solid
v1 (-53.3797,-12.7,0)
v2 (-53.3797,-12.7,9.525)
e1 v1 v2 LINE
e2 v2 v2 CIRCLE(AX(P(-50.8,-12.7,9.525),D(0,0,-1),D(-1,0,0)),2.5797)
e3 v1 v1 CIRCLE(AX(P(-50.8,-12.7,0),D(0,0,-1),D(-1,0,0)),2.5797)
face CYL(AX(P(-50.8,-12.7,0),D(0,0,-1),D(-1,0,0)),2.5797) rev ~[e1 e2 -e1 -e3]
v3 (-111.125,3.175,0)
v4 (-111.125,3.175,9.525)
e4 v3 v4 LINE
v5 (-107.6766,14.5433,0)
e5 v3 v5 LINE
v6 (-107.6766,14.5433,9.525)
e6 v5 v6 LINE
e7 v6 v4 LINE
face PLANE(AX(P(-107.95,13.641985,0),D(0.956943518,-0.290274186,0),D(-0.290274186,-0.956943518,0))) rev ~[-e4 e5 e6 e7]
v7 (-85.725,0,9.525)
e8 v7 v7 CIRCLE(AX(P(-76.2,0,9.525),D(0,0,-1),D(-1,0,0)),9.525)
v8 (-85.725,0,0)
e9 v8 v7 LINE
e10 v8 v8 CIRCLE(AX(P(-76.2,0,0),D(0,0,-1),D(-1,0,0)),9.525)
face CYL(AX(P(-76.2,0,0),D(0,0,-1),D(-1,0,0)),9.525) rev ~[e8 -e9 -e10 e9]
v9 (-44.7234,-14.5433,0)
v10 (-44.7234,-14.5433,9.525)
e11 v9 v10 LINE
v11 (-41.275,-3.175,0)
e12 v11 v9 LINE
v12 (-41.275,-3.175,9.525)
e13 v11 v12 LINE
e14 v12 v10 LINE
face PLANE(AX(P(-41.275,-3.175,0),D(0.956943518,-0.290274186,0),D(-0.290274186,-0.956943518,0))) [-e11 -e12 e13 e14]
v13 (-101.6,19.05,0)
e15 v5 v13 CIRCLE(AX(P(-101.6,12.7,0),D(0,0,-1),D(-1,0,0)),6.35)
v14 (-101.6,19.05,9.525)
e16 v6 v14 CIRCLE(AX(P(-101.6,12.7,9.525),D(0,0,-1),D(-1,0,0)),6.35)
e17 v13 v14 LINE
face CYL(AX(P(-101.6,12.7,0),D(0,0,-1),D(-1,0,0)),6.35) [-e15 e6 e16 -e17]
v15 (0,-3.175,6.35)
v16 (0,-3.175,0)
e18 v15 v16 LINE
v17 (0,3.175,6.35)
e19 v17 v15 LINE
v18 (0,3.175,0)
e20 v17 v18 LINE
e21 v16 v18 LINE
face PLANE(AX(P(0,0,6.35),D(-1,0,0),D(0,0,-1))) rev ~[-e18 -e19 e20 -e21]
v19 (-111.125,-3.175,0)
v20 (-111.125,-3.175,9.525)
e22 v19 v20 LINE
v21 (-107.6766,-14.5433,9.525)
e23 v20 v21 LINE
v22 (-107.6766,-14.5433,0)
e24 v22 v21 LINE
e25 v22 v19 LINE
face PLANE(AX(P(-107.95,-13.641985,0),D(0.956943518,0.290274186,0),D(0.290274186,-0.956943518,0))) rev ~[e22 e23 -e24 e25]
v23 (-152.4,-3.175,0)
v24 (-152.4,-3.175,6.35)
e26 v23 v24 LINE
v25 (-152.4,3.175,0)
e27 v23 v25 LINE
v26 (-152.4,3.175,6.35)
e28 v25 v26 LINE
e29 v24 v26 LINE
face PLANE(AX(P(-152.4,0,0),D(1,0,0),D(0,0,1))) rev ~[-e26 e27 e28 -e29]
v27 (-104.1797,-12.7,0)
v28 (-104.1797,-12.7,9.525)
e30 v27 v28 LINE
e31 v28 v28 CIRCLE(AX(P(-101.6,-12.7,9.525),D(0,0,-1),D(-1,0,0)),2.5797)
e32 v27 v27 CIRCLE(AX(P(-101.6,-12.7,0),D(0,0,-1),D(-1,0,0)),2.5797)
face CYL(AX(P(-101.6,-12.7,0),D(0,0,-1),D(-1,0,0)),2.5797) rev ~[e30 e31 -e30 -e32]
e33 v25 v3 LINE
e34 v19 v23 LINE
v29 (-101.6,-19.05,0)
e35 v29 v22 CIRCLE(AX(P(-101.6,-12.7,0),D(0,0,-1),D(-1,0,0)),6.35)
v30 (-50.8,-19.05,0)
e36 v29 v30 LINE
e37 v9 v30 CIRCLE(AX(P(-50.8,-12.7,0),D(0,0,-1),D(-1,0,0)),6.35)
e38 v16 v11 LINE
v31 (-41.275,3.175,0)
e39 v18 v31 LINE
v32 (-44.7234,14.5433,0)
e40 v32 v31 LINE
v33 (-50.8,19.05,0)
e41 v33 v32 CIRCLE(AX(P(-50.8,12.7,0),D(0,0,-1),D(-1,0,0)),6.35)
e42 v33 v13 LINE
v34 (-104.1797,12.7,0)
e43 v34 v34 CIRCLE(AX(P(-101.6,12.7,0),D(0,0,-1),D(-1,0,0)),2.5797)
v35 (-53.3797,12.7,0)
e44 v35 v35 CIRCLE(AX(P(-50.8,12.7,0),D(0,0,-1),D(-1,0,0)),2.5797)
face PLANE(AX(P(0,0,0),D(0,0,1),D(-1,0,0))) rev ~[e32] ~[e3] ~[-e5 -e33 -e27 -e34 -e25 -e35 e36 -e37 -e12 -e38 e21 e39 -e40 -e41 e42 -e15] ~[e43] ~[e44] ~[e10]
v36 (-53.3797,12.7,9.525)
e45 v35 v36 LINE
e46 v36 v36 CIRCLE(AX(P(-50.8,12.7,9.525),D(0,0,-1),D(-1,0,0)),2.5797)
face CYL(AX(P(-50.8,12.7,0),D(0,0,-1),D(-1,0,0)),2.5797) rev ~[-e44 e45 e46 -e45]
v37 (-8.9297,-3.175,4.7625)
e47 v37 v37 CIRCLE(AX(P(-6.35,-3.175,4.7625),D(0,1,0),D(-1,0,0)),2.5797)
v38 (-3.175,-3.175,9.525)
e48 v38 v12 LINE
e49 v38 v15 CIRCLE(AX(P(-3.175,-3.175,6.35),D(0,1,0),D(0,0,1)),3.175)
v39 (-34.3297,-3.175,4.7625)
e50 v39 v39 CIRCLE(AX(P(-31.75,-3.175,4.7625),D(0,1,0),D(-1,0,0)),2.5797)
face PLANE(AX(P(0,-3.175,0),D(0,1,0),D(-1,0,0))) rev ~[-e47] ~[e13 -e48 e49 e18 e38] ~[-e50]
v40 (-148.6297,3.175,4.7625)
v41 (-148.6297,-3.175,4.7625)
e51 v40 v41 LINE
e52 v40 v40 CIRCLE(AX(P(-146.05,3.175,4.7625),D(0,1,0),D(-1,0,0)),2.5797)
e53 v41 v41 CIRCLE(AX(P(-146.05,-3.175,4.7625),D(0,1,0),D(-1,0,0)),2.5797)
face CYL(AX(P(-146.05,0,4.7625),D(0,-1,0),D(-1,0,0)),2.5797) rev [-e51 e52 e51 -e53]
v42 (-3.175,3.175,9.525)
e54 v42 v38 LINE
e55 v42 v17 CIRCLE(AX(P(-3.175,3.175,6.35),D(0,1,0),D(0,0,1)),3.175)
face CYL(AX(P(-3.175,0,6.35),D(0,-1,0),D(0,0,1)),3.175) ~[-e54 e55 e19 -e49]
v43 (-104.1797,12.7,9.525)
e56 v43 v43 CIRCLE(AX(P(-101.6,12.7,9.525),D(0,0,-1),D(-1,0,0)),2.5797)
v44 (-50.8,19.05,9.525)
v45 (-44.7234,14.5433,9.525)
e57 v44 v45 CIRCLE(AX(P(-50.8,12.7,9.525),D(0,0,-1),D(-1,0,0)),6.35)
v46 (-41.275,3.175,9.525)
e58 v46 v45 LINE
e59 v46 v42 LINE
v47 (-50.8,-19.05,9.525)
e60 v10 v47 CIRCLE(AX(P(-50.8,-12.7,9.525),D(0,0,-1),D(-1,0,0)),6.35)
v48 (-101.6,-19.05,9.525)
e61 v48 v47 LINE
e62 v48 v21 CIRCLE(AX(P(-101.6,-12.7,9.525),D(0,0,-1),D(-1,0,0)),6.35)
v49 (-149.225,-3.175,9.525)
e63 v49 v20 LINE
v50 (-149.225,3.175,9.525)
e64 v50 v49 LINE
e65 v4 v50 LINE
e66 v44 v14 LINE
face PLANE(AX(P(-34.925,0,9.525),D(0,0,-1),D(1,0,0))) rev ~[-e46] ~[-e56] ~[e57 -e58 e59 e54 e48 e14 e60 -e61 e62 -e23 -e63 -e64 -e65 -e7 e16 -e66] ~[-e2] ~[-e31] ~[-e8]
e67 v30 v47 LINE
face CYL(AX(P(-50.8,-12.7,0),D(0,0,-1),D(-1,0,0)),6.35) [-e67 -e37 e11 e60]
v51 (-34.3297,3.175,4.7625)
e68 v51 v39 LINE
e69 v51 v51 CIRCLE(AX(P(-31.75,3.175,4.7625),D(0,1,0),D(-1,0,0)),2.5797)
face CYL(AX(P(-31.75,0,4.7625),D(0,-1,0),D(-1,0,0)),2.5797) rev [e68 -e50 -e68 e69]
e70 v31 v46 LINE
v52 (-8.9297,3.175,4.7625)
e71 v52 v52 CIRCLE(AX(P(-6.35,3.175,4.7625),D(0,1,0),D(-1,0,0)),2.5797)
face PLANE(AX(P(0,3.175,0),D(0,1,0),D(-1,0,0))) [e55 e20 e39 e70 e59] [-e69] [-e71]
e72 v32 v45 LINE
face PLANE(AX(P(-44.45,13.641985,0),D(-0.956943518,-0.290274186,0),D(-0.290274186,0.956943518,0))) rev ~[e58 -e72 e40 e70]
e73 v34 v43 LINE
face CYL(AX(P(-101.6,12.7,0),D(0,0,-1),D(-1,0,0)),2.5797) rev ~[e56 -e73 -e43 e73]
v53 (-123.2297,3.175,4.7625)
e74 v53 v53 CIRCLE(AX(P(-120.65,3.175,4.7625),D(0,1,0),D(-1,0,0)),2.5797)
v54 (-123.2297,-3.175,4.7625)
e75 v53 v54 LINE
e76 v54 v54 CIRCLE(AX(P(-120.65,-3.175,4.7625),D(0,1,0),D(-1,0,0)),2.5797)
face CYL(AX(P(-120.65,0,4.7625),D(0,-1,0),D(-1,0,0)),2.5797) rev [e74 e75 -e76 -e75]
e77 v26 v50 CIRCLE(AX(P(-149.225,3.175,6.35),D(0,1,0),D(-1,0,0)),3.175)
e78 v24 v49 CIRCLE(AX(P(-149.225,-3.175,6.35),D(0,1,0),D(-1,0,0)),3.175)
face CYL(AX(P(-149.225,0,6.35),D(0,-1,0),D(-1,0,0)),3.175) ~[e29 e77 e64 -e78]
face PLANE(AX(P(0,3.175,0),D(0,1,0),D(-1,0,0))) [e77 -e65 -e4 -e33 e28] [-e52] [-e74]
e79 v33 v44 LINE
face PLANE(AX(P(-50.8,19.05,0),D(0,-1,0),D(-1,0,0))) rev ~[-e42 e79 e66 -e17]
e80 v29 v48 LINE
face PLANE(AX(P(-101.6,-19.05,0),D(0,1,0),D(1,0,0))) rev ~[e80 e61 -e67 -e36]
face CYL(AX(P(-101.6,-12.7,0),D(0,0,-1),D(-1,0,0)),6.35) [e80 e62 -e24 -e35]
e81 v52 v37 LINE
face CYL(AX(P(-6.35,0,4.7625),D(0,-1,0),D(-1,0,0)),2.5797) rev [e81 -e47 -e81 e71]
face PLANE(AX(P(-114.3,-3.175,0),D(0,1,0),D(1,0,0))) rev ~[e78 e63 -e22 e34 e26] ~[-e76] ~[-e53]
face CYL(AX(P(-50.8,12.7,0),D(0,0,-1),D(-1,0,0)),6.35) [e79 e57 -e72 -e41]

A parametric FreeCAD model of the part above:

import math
import FreeCAD as App
import Part
import Sketcher
Q = App.Units.Quantity


def add_polygon(sketch, points):
    """Adds a closed chain of lines whose ends are joined by coincident constraints."""
    first, n = sketch.GeometryCount, len(points)
    for a, b in zip(points, points[1:] + points[:1]):
        sketch.addGeometry(Part.LineSegment(App.Vector(*a, 0), App.Vector(*b, 0)), False)
    for i in range(n):
        sketch.addConstraint(Sketcher.Constraint("Coincident", first + i, 2, first + (i + 1) % n, 1))

doc = App.newDocument("Part")
params = doc.addObject("Spreadsheet::Sheet", "Params")
for row, (alias, value) in enumerate([
    ("sketch1_width", "6 in"),
    ("sketch1_diameter", "0.203126 in"),
    ("sketch1_radius", "0.125 in"),
    ("sketch1_height", "0.25 in"),
    ("pad1_length", "0.25 in"),
    ("sketch2_width", "3 in"),
    ("sketch2_height", "0.375 in"),
    ("pad2_length", "2 in"),
    ("sketch3_diameter", "0.75 in"),
    ("sketch3_width", "3 in"),
    ("sketch3_width2", "2 in"),
    ("sketch3_radius", "0.25 in"),
    ("sketch3_diameter2", "0.203126 in"),
], start=1):
    params.set(f"A{row}", alias)
    params.set(f"B{row}", "=" + value)
    params.setAlias(f"B{row}", alias)

body = doc.addObject("PartDesign::Body", "Body")

sketch1 = body.newObject("Sketcher::SketchObject", "Sketch")
sketch1.AttachmentSupport = (doc.getObject("XZ_Plane"), [""])
sketch1.MapMode = "FlatFace"
sketch1.addGeometry(Part.LineSegment(App.Vector(0, 6.3, 0), App.Vector(0, 0, 0)), False)
sketch1.addGeometry(Part.LineSegment(App.Vector(0, 0, 0), App.Vector(-152.4, 0, 0)), False)
sketch1.addGeometry(Part.LineSegment(App.Vector(-152.4, 0, 0), App.Vector(-152.4, 6.3, 0)), False)
sketch1.addGeometry(Part.ArcOfCircle(Part.Circle(App.Vector(-149.2, 6.3, 0), App.Vector(0, 0, 1), 3.2), math.radians(90), math.radians(180)), False)
sketch1.addGeometry(Part.LineSegment(App.Vector(-149.2, 9.5, 0), App.Vector(-3.2, 9.5, 0)), False)
sketch1.addGeometry(Part.ArcOfCircle(Part.Circle(App.Vector(-3.2, 6.3, 0), App.Vector(0, 0, 1), 3.2), math.radians(0), math.radians(90)), False)
sketch1.addGeometry(Part.Circle(App.Vector(-6.3, 4.8, 0), App.Vector(0, 0, 1), 2.6), False)
sketch1.addGeometry(Part.Circle(App.Vector(-31.8, 4.8, 0), App.Vector(0, 0, 1), 2.6), False)
sketch1.addGeometry(Part.Circle(App.Vector(-146.1, 4.8, 0), App.Vector(0, 0, 1), 2.6), False)
sketch1.addGeometry(Part.Circle(App.Vector(-120.7, 4.8, 0), App.Vector(0, 0, 1), 2.6), False)
sketch1.addConstraint(Sketcher.Constraint("Coincident", 0, 2, 1, 1))
sketch1.addConstraint(Sketcher.Constraint("Coincident", 1, 2, 2, 1))
sketch1.addConstraint(Sketcher.Constraint("Tangent", 2, 2, 3, 2))
sketch1.addConstraint(Sketcher.Constraint("Tangent", 3, 1, 4, 1))
sketch1.addConstraint(Sketcher.Constraint("Tangent", 4, 2, 5, 2))
sketch1.addConstraint(Sketcher.Constraint("Tangent", 5, 1, 0, 1))
sketch1.addConstraint(Sketcher.Constraint("Vertical", 0))
sketch1.addConstraint(Sketcher.Constraint("Horizontal", 1))
sketch1.addConstraint(Sketcher.Constraint("Vertical", 2))
sketch1.addConstraint(Sketcher.Constraint("Horizontal", 4))
sketch1.addConstraint(Sketcher.Constraint("Coincident", 0, 2, -1, 1))
sketch1.addConstraint(Sketcher.Constraint("Equal", 3, 5))
sketch1.addConstraint(Sketcher.Constraint("Equal", 6, 7))
sketch1.addConstraint(Sketcher.Constraint("Equal", 7, 8))
sketch1.addConstraint(Sketcher.Constraint("Equal", 8, 9))
sketch1.addConstraint(Sketcher.Constraint("Horizontal", 6, 3, 7, 3))
sketch1.addConstraint(Sketcher.Constraint("Horizontal", 7, 3, 8, 3))
sketch1.addConstraint(Sketcher.Constraint("Horizontal", 8, 3, 9, 3))
sketch1.addConstraint(Sketcher.Constraint("DistanceX", 1, 2, 1, 1, Q("6 in")))
sketch1.addConstraint(Sketcher.Constraint("Diameter", 6, Q("0.203126 in")))
sketch1.addConstraint(Sketcher.Constraint("Radius", 3, Q("0.125 in")))
sketch1.addConstraint(Sketcher.Constraint("DistanceX", 7, 3, 6, 3, Q("1 in")))
sketch1.addConstraint(Sketcher.Constraint("DistanceX", 8, 3, 9, 3, Q("1 in")))
sketch1.addConstraint(Sketcher.Constraint("DistanceY", 0, 2, 0, 1, Q("0.25 in")))
sketch1.addConstraint(Sketcher.Constraint("DistanceX", 6, 3, -1, 1, Q("0.25 in")))
sketch1.addConstraint(Sketcher.Constraint("DistanceX", 1, 2, 8, 3, Q("0.25 in")))
sketch1.addConstraint(Sketcher.Constraint("DistanceY", -1, 1, 6, 3, Q("0.1875 in")))
sketch1.setExpression("Constraints[18]", "Params.sketch1_width")
sketch1.setExpression("Constraints[19]", "Params.sketch1_diameter")
sketch1.setExpression("Constraints[20]", "Params.sketch1_radius")
sketch1.setExpression("Constraints[23]", "Params.sketch1_height")
pad1 = body.newObject("PartDesign::Pad", "Pad")
pad1.Profile = sketch1
pad1.setExpression("Length", "Params.pad1_length")
pad1.Midplane = True

sketch2 = body.newObject("Sketcher::SketchObject", "Sketch001")
sketch2.AttachmentSupport = (doc.getObject("XZ_Plane"), [""])
sketch2.MapMode = "FlatFace"
add_polygon(sketch2, [(-38, 0), (-114, 0), (-114, 10), (-38, 10)])
sketch2.addConstraint(Sketcher.Constraint("Horizontal", 0))
sketch2.addConstraint(Sketcher.Constraint("Vertical", 1))
sketch2.addConstraint(Sketcher.Constraint("Horizontal", 2))
sketch2.addConstraint(Sketcher.Constraint("Vertical", 3))
sketch2.addConstraint(Sketcher.Constraint("PointOnObject", 0, 2, -1))
sketch2.addConstraint(Sketcher.Constraint("DistanceX", 0, 2, 0, 1, Q("3 in")))
sketch2.addConstraint(Sketcher.Constraint("DistanceY", 1, 1, 1, 2, Q("0.375 in")))
sketch2.addConstraint(Sketcher.Constraint("DistanceX", 0, 2, -1, 1, Q("4.5 in")))
sketch2.setExpression("Constraints[9]", "Params.sketch2_width")
sketch2.setExpression("Constraints[10]", "Params.sketch2_height")
pad2 = body.newObject("PartDesign::Pad", "Pad001")
pad2.Profile = sketch2
pad2.setExpression("Length", "Params.pad2_length")
pad2.Midplane = True

sketch3 = body.newObject("Sketcher::SketchObject", "Sketch002")
sketch3.AttachmentSupport = (doc.getObject("XY_Plane"), [""])
sketch3.MapMode = "FlatFace"
sketch3.addGeometry(Part.LineSegment(App.Vector(-38.1, -25.4, 0), App.Vector(-114.3, -25.4, 0)), False)
sketch3.addGeometry(Part.LineSegment(App.Vector(-114.3, -25.4, 0), App.Vector(-114.3, -3.2, 0)), False)
sketch3.addGeometry(Part.LineSegment(App.Vector(-114.3, -3.2, 0), App.Vector(-111.1, -3.2, 0)), False)
sketch3.addGeometry(Part.LineSegment(App.Vector(-111.1, -3.2, 0), App.Vector(-107.7, -14.5, 0)), False)
sketch3.addGeometry(Part.ArcOfCircle(Part.Circle(App.Vector(-101.6, -12.7, 0), App.Vector(0, 0, 1), 6.3), math.radians(-163), math.radians(-90)), False)
sketch3.addGeometry(Part.LineSegment(App.Vector(-101.6, -19.1, 0), App.Vector(-50.8, -19.1, 0)), False)
sketch3.addGeometry(Part.ArcOfCircle(Part.Circle(App.Vector(-50.8, -12.7, 0), App.Vector(0, 0, 1), 6.3), math.radians(-90), math.radians(-17)), False)
sketch3.addGeometry(Part.LineSegment(App.Vector(-44.7, -14.5, 0), App.Vector(-41.3, -3.2, 0)), False)
sketch3.addGeometry(Part.LineSegment(App.Vector(-41.3, -3.2, 0), App.Vector(-38.1, -3.2, 0)), False)
sketch3.addGeometry(Part.LineSegment(App.Vector(-38.1, -3.2, 0), App.Vector(-38.1, -25.4, 0)), False)
sketch3.addGeometry(Part.LineSegment(App.Vector(-111.1, 3.2, 0), App.Vector(-114.3, 3.2, 0)), False)
sketch3.addGeometry(Part.LineSegment(App.Vector(-114.3, 3.2, 0), App.Vector(-114.3, 25.4, 0)), False)
sketch3.addGeometry(Part.LineSegment(App.Vector(-114.3, 25.4, 0), App.Vector(-38.1, 25.4, 0)), False)
sketch3.addGeometry(Part.LineSegment(App.Vector(-38.1, 25.4, 0), App.Vector(-38.1, 3.2, 0)), False)
sketch3.addGeometry(Part.LineSegment(App.Vector(-38.1, 3.2, 0), App.Vector(-41.3, 3.2, 0)), False)
sketch3.addGeometry(Part.LineSegment(App.Vector(-41.3, 3.2, 0), App.Vector(-44.7, 14.5, 0)), False)
sketch3.addGeometry(Part.ArcOfCircle(Part.Circle(App.Vector(-50.8, 12.7, 0), App.Vector(0, 0, 1), 6.3), math.radians(17), math.radians(90)), False)
sketch3.addGeometry(Part.LineSegment(App.Vector(-50.8, 19.1, 0), App.Vector(-101.6, 19.1, 0)), False)
sketch3.addGeometry(Part.ArcOfCircle(Part.Circle(App.Vector(-101.6, 12.7, 0), App.Vector(0, 0, 1), 6.3), math.radians(90), math.radians(163)), False)
sketch3.addGeometry(Part.LineSegment(App.Vector(-107.7, 14.5, 0), App.Vector(-111.1, 3.2, 0)), False)
sketch3.addGeometry(Part.Circle(App.Vector(-76.2, 0, 0), App.Vector(0, 0, 1), 9.5), False)
sketch3.addGeometry(Part.Circle(App.Vector(-50.8, 12.7, 0), App.Vector(0, 0, 1), 2.6), False)
sketch3.addGeometry(Part.Circle(App.Vector(-50.8, -12.7, 0), App.Vector(0, 0, 1), 2.6), False)
sketch3.addGeometry(Part.Circle(App.Vector(-101.6, 12.7, 0), App.Vector(0, 0, 1), 2.6), False)
sketch3.addGeometry(Part.Circle(App.Vector(-101.6, -12.7, 0), App.Vector(0, 0, 1), 2.6), False)
sketch3.addConstraint(Sketcher.Constraint("Coincident", 0, 2, 1, 1))
sketch3.addConstraint(Sketcher.Constraint("Coincident", 1, 2, 2, 1))
sketch3.addConstraint(Sketcher.Constraint("Coincident", 2, 2, 3, 1))
sketch3.addConstraint(Sketcher.Constraint("Tangent", 3, 2, 4, 1))
sketch3.addConstraint(Sketcher.Constraint("Tangent", 4, 2, 5, 1))
sketch3.addConstraint(Sketcher.Constraint("Tangent", 5, 2, 6, 1))
sketch3.addConstraint(Sketcher.Constraint("Tangent", 6, 2, 7, 1))
sketch3.addConstraint(Sketcher.Constraint("Coincident", 7, 2, 8, 1))
sketch3.addConstraint(Sketcher.Constraint("Coincident", 8, 2, 9, 1))
sketch3.addConstraint(Sketcher.Constraint("Coincident", 9, 2, 0, 1))
sketch3.addConstraint(Sketcher.Constraint("Coincident", 10, 2, 11, 1))
sketch3.addConstraint(Sketcher.Constraint("Coincident", 11, 2, 12, 1))
sketch3.addConstraint(Sketcher.Constraint("Coincident", 12, 2, 13, 1))
sketch3.addConstraint(Sketcher.Constraint("Coincident", 13, 2, 14, 1))
sketch3.addConstraint(Sketcher.Constraint("Coincident", 14, 2, 15, 1))
sketch3.addConstraint(Sketcher.Constraint("Tangent", 15, 2, 16, 1))
sketch3.addConstraint(Sketcher.Constraint("Tangent", 16, 2, 17, 1))
sketch3.addConstraint(Sketcher.Constraint("Tangent", 17, 2, 18, 1))
sketch3.addConstraint(Sketcher.Constraint("Tangent", 18, 2, 19, 1))
sketch3.addConstraint(Sketcher.Constraint("Coincident", 19, 2, 10, 1))
sketch3.addConstraint(Sketcher.Constraint("Horizontal", 0))
sketch3.addConstraint(Sketcher.Constraint("Vertical", 1))
sketch3.addConstraint(Sketcher.Constraint("Horizontal", 2))
sketch3.addConstraint(Sketcher.Constraint("Horizontal", 5))
sketch3.addConstraint(Sketcher.Constraint("Horizontal", 8))
sketch3.addConstraint(Sketcher.Constraint("Vertical", 9))
sketch3.addConstraint(Sketcher.Constraint("Horizontal", 10))
sketch3.addConstraint(Sketcher.Constraint("Vertical", 11))
sketch3.addConstraint(Sketcher.Constraint("Horizontal", 12))
sketch3.addConstraint(Sketcher.Constraint("Vertical", 13))
sketch3.addConstraint(Sketcher.Constraint("Horizontal", 14))
sketch3.addConstraint(Sketcher.Constraint("Horizontal", 17))
sketch3.addConstraint(Sketcher.Constraint("Coincident", 21, 3, 16, 3))
sketch3.addConstraint(Sketcher.Constraint("Coincident", 22, 3, 6, 3))
sketch3.addConstraint(Sketcher.Constraint("Coincident", 23, 3, 18, 3))
sketch3.addConstraint(Sketcher.Constraint("Coincident", 24, 3, 4, 3))
sketch3.addConstraint(Sketcher.Constraint("Equal", 4, 6))
sketch3.addConstraint(Sketcher.Constraint("Equal", 6, 16))
sketch3.addConstraint(Sketcher.Constraint("Equal", 16, 18))
sketch3.addConstraint(Sketcher.Constraint("Equal", 21, 22))
sketch3.addConstraint(Sketcher.Constraint("Equal", 22, 23))
sketch3.addConstraint(Sketcher.Constraint("Equal", 23, 24))
sketch3.addConstraint(Sketcher.Constraint("Symmetric", 6, 3, 16, 3, -1))
sketch3.addConstraint(Sketcher.Constraint("Symmetric", 1, 2, 10, 2, -1))
sketch3.addConstraint(Sketcher.Constraint("Symmetric", 9, 2, 12, 2, -1))
sketch3.addConstraint(Sketcher.Constraint("Symmetric", 7, 2, 14, 2, -1))
sketch3.addConstraint(Sketcher.Constraint("Symmetric", 3, 2, 18, 2, -1))
sketch3.addConstraint(Sketcher.Constraint("PointOnObject", 20, 3, -1))
sketch3.addConstraint(Sketcher.Constraint("Parallel", 3, 15))
sketch3.addConstraint(Sketcher.Constraint("Horizontal", 2, 2, 7, 2))
sketch3.addConstraint(Sketcher.Constraint("Equal", 2, 8))
sketch3.addConstraint(Sketcher.Constraint("Diameter", 20, Q("0.75 in")))
sketch3.addConstraint(Sketcher.Constraint("DistanceX", 0, 2, 0, 1, Q("3 in")))
sketch3.addConstraint(Sketcher.Constraint("DistanceX", 5, 1, 5, 2, Q("2 in")))
sketch3.addConstraint(Sketcher.Constraint("Radius", 4, Q("0.25 in")))
sketch3.addConstraint(Sketcher.Constraint("Diameter", 21, Q("0.203126 in")))
sketch3.addConstraint(Sketcher.Constraint("DistanceX", 6, 3, -1, 1, Q("2 in")))
sketch3.addConstraint(Sketcher.Constraint("DistanceX", 20, 3, -1, 1, Q("3 in")))
sketch3.addConstraint(Sketcher.Constraint("DistanceY", 0, 2, -1, 1, Q("1 in")))
sketch3.addConstraint(Sketcher.Constraint("DistanceY", 6, 3, 16, 3, Q("1 in")))
sketch3.addConstraint(Sketcher.Constraint("DistanceX", 2, 1, 2, 2, Q("0.125 in")))
sketch3.addConstraint(Sketcher.Constraint("DistanceY", 1, 2, 10, 2, Q("0.25 in")))
sketch3.setExpression("Constraints[51]", "Params.sketch3_diameter")
sketch3.setExpression("Constraints[52]", "Params.sketch3_width")
sketch3.setExpression("Constraints[53]", "Params.sketch3_width2")
sketch3.setExpression("Constraints[54]", "Params.sketch3_radius")
sketch3.setExpression("Constraints[55]", "Params.sketch3_diameter2")
pocket1 = body.newObject("PartDesign::Pocket", "Pocket")
pocket1.Profile = sketch3
pocket1.Type = "ThroughAll"
pocket1.Reversed = True

doc.recompute()
